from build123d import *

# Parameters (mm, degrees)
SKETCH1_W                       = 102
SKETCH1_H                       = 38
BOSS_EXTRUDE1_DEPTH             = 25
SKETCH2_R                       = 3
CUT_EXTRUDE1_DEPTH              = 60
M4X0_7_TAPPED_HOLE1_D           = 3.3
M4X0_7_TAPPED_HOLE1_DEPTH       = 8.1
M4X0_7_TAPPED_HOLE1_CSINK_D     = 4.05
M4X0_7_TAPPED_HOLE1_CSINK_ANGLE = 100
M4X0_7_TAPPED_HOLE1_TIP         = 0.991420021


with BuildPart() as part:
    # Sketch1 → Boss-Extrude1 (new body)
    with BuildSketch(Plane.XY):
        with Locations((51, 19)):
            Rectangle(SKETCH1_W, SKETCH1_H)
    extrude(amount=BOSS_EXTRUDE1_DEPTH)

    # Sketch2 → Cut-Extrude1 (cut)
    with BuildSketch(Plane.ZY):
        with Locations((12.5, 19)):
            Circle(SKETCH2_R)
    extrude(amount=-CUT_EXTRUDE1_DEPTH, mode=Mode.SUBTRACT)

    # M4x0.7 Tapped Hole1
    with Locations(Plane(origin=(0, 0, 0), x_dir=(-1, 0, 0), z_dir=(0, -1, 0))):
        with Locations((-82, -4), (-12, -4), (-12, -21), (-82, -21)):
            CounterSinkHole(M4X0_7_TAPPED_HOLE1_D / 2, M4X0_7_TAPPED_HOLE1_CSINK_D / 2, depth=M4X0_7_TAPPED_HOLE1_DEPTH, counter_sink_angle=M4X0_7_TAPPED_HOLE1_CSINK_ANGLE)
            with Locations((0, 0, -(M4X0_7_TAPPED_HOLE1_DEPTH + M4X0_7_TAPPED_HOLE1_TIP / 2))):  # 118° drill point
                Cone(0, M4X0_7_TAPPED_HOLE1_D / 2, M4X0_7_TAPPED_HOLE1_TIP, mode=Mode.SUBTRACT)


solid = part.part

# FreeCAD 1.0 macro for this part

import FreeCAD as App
import Part
import Sketcher
from FreeCAD import Vector
Q = App.Units.Quantity


def add_polygon(sketch, points):
    """Adds a closed chain of lines whose ends are joined by coincident constraints."""
    first, n = sketch.GeometryCount, len(points)
    for a, b in zip(points, points[1:] + points[:1]):
        sketch.addGeometry(Part.LineSegment(App.Vector(*a, 0), App.Vector(*b, 0)), False)
    for i in range(n):
        sketch.addConstraint(Sketcher.Constraint("Coincident", first + i, 2, first + (i + 1) % n, 1))

doc = App.newDocument("Part")
body = doc.addObject("PartDesign::Body", "Body")

# Sketch on XY plane
sketch1 = doc.addObject("Sketcher::SketchObject", "Sketch")
body.addObject(sketch1)
sketch1.AttachmentSupport = (doc.XY_Plane, [""])
sketch1.MapMode = "FlatFace"
add_polygon(sketch1, [(0, 38), (0, 0), (102, 0), (102, 38)])  # lines 0-3
sketch1.addConstraint([
    Sketcher.Constraint("Vertical", 0),
    Sketcher.Constraint("Horizontal", 1),
    Sketcher.Constraint("Vertical", 2),
    Sketcher.Constraint("Horizontal", 3),
    Sketcher.Constraint("Coincident", 0, 2, -1, 1),
    Sketcher.Constraint("DistanceX", 1, 1, 1, 2, Q("102 mm")),
    Sketcher.Constraint("DistanceY", 0, 2, 0, 1, Q("38 mm")),
])
pad1 = doc.addObject("PartDesign::Pad", "Pad")
body.addObject(pad1)
pad1.Profile = sketch1
pad1.Length = 25

# Sketch on YZ plane
sketch2 = doc.addObject("Sketcher::SketchObject", "Sketch001")
body.addObject(sketch2)
sketch2.AttachmentSupport = (doc.YZ_Plane, [""])
sketch2.MapMode = "FlatFace"
sketch2.addGeometry(Part.Circle(Vector(19, 12.5, 0), Vector(0, 0, 1), 3), False)
sketch2.addConstraint([
    Sketcher.Constraint("Diameter", 0, Q("6 mm")),
    Sketcher.Constraint("DistanceX", -1, 1, 0, 3, Q("19 mm")),
    Sketcher.Constraint("DistanceY", -1, 1, 0, 3, Q("12.5 mm")),
])
pocket1 = doc.addObject("PartDesign::Pocket", "Pocket")
body.addObject(pocket1)
pocket1.Profile = sketch2
pocket1.Length = 60
pocket1.Reversed = True

# Sketch on XZ plane
sketch3 = doc.addObject("Sketcher::SketchObject", "Sketch002")
body.addObject(sketch3)
sketch3.AttachmentSupport = (doc.XZ_Plane, [""])
sketch3.MapMode = "FlatFace"
sketch3.addGeometry([
    Part.Circle(Vector(82, 4, 0), Vector(0, 0, 1), 1.65),
    Part.Circle(Vector(12, 4, 0), Vector(0, 0, 1), 1.65),
    Part.Circle(Vector(12, 21, 0), Vector(0, 0, 1), 1.65),
    Part.Circle(Vector(82, 21, 0), Vector(0, 0, 1), 1.65),
], False)
sketch3.addConstraint([
    Sketcher.Constraint("Equal", 0, 1),
    Sketcher.Constraint("Equal", 1, 2),
    Sketcher.Constraint("Equal", 2, 3),
    Sketcher.Constraint("Horizontal", 0, 3, 1, 3),
    Sketcher.Constraint("Horizontal", 2, 3, 3, 3),
    Sketcher.Constraint("Vertical", 1, 3, 2, 3),
    Sketcher.Constraint("Vertical", 0, 3, 3, 3),
    Sketcher.Constraint("Diameter", 0, Q("3.3 mm")),
    Sketcher.Constraint("DistanceX", -1, 1, 0, 3, Q("82 mm")),
    Sketcher.Constraint("DistanceY", -1, 1, 0, 3, Q("4 mm")),
    Sketcher.Constraint("DistanceX", -1, 1, 1, 3, Q("12 mm")),
    Sketcher.Constraint("DistanceY", -1, 1, 2, 3, Q("21 mm")),
])
doc.recompute()
hole = doc.addObject("PartDesign::Hole", "Hole")
body.addObject(hole)
hole.Profile = sketch3
hole.ThreadType = "None"
hole.Diameter = 3.3
hole.DepthType = "Dimension"
hole.Depth = 8.1
hole.DrillPoint = "Angled"
hole.DrillPointAngle = 118
hole.HoleCutType = "Countersink"
hole.HoleCutDiameter = 4.05
hole.HoleCutCountersinkAngle = 100

doc.recompute()
